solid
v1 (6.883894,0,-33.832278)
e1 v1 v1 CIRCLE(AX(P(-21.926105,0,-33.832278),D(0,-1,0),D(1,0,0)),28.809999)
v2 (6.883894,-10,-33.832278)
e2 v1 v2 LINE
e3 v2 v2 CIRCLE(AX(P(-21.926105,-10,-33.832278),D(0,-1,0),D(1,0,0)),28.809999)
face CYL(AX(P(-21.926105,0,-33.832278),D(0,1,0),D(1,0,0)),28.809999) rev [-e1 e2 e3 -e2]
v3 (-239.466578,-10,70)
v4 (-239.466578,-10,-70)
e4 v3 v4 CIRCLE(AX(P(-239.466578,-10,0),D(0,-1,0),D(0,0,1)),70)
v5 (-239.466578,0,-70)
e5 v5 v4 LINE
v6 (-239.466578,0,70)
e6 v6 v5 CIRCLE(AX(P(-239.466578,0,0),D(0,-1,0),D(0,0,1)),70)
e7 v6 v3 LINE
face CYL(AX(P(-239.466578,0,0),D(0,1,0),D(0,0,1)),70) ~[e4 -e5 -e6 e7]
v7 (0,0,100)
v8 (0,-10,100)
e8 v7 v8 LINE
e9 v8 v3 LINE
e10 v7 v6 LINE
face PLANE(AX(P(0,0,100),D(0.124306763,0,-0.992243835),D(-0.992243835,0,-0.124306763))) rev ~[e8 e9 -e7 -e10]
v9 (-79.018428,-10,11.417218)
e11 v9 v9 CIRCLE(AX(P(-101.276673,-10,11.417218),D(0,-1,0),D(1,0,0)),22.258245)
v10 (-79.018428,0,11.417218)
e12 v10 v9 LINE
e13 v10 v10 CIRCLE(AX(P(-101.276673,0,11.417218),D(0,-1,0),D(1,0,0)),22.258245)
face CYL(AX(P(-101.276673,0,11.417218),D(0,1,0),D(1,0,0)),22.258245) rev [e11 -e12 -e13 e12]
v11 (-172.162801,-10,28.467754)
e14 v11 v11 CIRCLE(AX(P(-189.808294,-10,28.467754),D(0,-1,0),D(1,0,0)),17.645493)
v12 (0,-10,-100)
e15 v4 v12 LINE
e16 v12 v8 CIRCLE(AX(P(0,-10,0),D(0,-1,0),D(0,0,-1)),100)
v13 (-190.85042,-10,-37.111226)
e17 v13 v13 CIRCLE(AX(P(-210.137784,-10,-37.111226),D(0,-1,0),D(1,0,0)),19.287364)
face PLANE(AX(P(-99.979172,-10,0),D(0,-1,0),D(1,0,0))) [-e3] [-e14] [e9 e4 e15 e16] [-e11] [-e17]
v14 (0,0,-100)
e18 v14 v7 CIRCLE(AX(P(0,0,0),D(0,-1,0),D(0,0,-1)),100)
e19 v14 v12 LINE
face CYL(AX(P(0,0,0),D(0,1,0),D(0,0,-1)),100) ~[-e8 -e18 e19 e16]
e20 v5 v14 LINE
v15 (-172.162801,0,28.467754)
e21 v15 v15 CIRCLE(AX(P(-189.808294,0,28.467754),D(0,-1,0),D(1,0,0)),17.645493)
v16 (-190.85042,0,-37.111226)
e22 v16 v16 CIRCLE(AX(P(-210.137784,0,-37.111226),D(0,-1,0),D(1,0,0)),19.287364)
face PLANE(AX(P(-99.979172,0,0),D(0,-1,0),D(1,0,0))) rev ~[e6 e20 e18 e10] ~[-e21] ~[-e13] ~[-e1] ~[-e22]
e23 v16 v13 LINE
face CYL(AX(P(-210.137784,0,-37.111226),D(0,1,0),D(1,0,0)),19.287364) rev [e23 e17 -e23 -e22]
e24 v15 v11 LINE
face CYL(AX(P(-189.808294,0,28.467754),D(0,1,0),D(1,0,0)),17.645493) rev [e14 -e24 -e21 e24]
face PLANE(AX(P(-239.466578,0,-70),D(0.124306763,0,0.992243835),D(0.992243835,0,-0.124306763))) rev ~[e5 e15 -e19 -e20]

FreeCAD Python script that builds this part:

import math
import FreeCAD as App
import Part
import Sketcher

V = App.Vector
Q = App.Units.Quantity

doc = App.newDocument("Part")
body = doc.addObject("PartDesign::Body", "Body")

# Sketch on XZ plane
sketch1 = doc.addObject("Sketcher::SketchObject", "Sketch")
body.addObject(sketch1)
sketch1.AttachmentSupport = (doc.XZ_Plane, [""])
sketch1.MapMode = "FlatFace"
sketch1.addGeometry(Part.LineSegment(V(-239, -70, 0), V(0, -100, 0)), False)
sketch1.addGeometry(Part.ArcOfCircle(Part.Circle(V(0, 0, 0), V(0, 0, 1), 100), math.radians(-90), math.radians(90)), False)
sketch1.addGeometry(Part.LineSegment(V(0, 100, 0), V(-239, 70, 0)), False)
sketch1.addGeometry(Part.ArcOfCircle(Part.Circle(V(-239, 0, 0), V(0, 0, 1), 70), math.radians(90), math.radians(270)), False)
sketch1.addGeometry(Part.Circle(V(-210, -37, 0), V(0, 0, 1), 19), False)
sketch1.addGeometry(Part.Circle(V(-22, -34, 0), V(0, 0, 1), 29), False)
sketch1.addGeometry(Part.Circle(V(-190, 28, 0), V(0, 0, 1), 18), False)
sketch1.addGeometry(Part.Circle(V(-101, 11, 0), V(0, 0, 1), 22), False)
sketch1.addConstraint(Sketcher.Constraint("Coincident", 0, 2, 1, 1))
sketch1.addConstraint(Sketcher.Constraint("Coincident", 1, 2, 2, 1))
sketch1.addConstraint(Sketcher.Constraint("Coincident", 2, 2, 3, 1))
sketch1.addConstraint(Sketcher.Constraint("Coincident", 3, 2, 0, 1))
sketch1.addConstraint(Sketcher.Constraint("Coincident", 1, 3, -1, 1))
sketch1.addConstraint(Sketcher.Constraint("Symmetric", 2, 2, 3, 2, -1))
sketch1.addConstraint(Sketcher.Constraint("PointOnObject", 0, 2, -2))
sketch1.addConstraint(Sketcher.Constraint("PointOnObject", 1, 2, -2))
sketch1.addConstraint(Sketcher.Constraint("Vertical", 3, 3, 2, 2))
sketch1.addConstraint(Sketcher.Constraint("Radius", 1, Q("100 mm")))
sketch1.addConstraint(Sketcher.Constraint("Radius", 3, Q("70 mm")))
sketch1.addConstraint(Sketcher.Constraint("Diameter", 5, Q("57.619998 mm")))
sketch1.addConstraint(Sketcher.Constraint("Diameter", 7, Q("44.51649 mm")))
sketch1.addConstraint(Sketcher.Constraint("Diameter", 4, Q("38.574728 mm")))
sketch1.addConstraint(Sketcher.Constraint("Diameter", 6, Q("35.290986 mm")))
sketch1.addConstraint(Sketcher.Constraint("Distance", 0, Q("241.338439 mm")))
sketch1.addConstraint(Sketcher.Constraint("DistanceY", 5, 3, -1, 1, Q("33.832278 mm")))
sketch1.addConstraint(Sketcher.Constraint("DistanceX", 4, 3, 5, 3, Q("188.211679 mm")))
sketch1.addConstraint(Sketcher.Constraint("DistanceX", 4, 3, 6, 3, Q("20.32949 mm")))
sketch1.addConstraint(Sketcher.Constraint("DistanceY", 4, 3, 6, 3, Q("65.57898 mm")))
sketch1.addConstraint(Sketcher.Constraint("DistanceX", 6, 3, 7, 3, Q("88.531621 mm")))
sketch1.addConstraint(Sketcher.Constraint("DistanceY", 0, 2, 7, 3, Q("111.417218 mm")))
sketch1.addConstraint(Sketcher.Constraint("DistanceX", 4, 3, -1, 1, Q("210.137784 mm")))
sketch1.addConstraint(Sketcher.Constraint("DistanceY", 4, 3, -1, 1, Q("37.111226 mm")))
pad1 = doc.addObject("PartDesign::Pad", "Pad")
body.addObject(pad1)
pad1.Profile = sketch1
pad1.Length = 10

doc.recompute()
